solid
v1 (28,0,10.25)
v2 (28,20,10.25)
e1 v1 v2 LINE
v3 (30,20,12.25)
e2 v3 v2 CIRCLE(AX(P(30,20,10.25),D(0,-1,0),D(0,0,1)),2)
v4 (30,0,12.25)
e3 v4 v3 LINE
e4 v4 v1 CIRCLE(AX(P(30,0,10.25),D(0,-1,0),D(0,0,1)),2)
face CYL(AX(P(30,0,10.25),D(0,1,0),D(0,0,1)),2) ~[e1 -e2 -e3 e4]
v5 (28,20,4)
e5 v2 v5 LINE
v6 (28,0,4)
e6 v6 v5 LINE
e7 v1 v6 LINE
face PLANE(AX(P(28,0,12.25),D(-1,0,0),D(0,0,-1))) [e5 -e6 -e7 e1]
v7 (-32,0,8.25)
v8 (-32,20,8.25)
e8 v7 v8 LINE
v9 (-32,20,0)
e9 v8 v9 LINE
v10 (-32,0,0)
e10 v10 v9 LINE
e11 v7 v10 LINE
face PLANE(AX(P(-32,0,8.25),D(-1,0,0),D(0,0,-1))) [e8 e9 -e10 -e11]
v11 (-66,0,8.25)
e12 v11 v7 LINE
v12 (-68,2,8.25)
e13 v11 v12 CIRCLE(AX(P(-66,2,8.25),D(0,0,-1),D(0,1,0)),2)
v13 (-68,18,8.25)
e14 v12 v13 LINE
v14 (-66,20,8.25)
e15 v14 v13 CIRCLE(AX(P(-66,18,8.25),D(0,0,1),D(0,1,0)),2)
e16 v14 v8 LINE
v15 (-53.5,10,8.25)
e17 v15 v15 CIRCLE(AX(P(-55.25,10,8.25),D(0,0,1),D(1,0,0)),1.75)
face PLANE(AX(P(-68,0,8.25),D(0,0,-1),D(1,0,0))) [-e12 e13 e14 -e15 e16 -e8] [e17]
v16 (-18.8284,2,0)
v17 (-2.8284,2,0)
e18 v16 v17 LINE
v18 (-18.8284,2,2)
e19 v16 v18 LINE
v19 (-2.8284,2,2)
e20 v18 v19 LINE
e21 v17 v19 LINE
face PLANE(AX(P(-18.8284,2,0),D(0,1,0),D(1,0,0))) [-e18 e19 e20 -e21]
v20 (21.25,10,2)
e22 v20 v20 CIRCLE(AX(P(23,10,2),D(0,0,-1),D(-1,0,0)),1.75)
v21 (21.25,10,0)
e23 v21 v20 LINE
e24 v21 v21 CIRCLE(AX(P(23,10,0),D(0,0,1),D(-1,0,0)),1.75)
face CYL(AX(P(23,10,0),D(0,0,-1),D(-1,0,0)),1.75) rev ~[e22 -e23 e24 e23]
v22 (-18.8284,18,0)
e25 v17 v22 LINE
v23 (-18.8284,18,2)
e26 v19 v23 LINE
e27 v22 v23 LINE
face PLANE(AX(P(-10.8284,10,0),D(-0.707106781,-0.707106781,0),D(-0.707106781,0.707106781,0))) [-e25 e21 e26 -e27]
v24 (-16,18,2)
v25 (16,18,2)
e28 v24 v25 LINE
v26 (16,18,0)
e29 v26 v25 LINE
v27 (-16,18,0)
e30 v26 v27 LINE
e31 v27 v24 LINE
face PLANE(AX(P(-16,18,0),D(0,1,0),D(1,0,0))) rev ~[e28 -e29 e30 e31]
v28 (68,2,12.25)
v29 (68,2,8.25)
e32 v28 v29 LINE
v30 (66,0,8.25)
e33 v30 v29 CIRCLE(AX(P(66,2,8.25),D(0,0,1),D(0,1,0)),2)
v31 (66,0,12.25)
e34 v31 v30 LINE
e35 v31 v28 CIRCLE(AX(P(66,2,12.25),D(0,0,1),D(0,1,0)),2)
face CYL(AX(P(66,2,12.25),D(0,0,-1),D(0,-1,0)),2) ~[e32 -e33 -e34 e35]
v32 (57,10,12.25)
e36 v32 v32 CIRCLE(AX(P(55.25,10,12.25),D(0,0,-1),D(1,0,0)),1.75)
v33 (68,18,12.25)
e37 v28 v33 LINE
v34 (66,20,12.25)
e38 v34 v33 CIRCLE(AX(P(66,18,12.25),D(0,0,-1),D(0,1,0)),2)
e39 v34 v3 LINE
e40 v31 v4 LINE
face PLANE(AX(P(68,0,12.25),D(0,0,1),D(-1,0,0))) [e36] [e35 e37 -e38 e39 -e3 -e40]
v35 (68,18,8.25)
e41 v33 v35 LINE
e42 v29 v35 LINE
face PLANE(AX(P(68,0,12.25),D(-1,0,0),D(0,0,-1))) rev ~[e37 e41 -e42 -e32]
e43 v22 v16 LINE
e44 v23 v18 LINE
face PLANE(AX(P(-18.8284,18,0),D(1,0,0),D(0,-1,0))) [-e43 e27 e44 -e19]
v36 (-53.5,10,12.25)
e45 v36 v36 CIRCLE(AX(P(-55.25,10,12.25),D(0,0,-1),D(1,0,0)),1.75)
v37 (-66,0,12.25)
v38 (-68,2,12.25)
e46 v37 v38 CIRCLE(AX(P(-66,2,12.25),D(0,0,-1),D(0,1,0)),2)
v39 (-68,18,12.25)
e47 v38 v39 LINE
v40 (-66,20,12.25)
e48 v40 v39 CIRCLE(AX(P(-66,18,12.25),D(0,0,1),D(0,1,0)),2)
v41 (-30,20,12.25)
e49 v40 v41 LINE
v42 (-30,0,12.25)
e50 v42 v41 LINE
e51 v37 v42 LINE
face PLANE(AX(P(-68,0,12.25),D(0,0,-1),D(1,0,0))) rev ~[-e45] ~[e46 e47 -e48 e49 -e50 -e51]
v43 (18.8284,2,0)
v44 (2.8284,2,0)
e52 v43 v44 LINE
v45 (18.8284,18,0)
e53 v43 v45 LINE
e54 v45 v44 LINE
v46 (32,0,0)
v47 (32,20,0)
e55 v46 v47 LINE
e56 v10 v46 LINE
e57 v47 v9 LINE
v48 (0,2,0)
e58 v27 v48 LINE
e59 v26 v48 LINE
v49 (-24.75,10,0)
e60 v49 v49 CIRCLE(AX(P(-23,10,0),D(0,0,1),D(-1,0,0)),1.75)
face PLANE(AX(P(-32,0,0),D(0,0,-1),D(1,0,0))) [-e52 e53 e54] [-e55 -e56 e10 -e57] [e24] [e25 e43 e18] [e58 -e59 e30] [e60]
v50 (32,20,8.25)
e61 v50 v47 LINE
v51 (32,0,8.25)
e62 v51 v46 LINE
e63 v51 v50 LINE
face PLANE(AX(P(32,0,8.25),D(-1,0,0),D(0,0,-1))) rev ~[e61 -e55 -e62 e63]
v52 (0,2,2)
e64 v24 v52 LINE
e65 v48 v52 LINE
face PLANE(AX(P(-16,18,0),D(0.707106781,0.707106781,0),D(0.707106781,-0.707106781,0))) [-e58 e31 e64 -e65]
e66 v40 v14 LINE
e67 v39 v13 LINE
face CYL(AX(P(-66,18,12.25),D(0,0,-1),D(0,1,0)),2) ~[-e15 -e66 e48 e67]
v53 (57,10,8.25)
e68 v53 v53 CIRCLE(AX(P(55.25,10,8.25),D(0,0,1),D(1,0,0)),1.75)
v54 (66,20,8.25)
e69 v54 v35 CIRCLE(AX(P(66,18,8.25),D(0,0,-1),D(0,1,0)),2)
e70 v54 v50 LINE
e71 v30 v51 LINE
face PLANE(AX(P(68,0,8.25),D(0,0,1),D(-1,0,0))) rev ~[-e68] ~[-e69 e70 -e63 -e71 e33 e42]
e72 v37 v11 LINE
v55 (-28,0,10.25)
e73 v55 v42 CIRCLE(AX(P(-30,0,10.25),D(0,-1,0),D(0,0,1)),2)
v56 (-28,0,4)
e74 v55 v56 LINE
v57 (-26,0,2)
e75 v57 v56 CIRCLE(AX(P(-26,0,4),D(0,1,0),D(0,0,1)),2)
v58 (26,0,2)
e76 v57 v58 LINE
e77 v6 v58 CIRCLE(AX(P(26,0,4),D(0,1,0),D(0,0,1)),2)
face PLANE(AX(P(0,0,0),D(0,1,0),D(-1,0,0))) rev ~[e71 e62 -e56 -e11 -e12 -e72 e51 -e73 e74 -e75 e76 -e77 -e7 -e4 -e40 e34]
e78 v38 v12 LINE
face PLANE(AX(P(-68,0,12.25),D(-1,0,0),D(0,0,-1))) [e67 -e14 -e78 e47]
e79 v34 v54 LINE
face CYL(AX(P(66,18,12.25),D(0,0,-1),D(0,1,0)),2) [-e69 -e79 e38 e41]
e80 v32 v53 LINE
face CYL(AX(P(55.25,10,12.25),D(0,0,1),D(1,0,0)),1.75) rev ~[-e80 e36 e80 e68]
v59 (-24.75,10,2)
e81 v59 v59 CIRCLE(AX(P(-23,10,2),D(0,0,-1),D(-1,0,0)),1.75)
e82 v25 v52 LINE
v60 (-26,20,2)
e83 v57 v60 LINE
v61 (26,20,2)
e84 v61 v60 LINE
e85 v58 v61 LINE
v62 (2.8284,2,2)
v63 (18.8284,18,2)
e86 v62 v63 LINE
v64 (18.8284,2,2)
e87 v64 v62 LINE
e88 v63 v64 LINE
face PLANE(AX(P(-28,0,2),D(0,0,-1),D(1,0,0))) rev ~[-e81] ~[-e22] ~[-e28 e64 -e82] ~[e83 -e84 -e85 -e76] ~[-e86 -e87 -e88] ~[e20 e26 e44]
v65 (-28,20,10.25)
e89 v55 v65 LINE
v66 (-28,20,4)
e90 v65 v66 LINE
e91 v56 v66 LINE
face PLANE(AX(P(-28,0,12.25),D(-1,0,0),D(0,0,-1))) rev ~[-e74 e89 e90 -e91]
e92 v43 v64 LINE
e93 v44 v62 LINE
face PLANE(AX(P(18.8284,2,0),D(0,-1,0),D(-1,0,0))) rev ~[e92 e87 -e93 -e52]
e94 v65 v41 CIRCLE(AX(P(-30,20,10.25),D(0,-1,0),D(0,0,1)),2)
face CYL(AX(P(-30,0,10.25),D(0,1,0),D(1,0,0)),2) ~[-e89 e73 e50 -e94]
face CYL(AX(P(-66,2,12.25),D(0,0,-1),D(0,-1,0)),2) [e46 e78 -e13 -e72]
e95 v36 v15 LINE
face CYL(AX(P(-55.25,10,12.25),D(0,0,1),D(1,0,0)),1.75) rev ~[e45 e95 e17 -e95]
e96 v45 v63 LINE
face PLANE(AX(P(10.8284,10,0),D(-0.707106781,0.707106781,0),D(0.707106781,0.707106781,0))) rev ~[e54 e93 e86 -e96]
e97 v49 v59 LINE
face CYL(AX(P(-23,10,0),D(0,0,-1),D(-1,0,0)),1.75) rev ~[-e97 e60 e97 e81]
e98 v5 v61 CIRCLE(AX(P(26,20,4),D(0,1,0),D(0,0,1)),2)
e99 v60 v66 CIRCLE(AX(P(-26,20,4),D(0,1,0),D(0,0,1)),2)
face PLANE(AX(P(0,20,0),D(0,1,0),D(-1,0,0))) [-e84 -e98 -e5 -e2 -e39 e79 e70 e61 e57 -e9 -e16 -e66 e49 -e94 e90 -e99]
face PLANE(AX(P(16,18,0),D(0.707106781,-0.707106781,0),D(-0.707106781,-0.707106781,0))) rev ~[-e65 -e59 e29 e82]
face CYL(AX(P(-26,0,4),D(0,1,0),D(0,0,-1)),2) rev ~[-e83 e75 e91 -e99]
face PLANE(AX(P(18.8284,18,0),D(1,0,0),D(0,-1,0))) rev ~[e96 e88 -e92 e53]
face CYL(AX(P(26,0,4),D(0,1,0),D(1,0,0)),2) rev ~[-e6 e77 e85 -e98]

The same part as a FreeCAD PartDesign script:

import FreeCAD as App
import Part
import Sketcher

V = App.Vector


def edges_at(feature, points):
    """Names of the edges that pass closest to the given points."""
    edges = feature.Shape.Edges
    near = lambda p: min(range(len(edges)), key=lambda i: edges[i].distToShape(Part.Vertex(*p))[0])
    return sorted({f"Edge{near(p) + 1}" for p in points})

doc = App.newDocument("Part")
params = doc.addObject("Spreadsheet::Sheet", "Params")
for row, (alias, value) in enumerate([
    ("sketch1_width", "56 mm"),
    ("sketch1_width2", "40 mm"),
    ("sketch1_width3", "36 mm"),
    ("sketch1_height", "4 mm"),
    ("sketch1_height2", "10.25 mm"),
    ("pad1_length", "20 mm"),
    ("sketch2_diameter", "3.5 mm"),
    ("sketch2_width", "16 mm"),
    ("sketch3_diameter", "3.5 mm"),
    ("fillet_radius", "2 mm"),
    ("fillet2_radius", "2 mm"),
], start=1):
    params.set(f"A{row}", alias)
    params.set(f"B{row}", "=" + value)
    params.setAlias(f"B{row}", alias)

body = doc.addObject("PartDesign::Body", "Body")

sketch1 = body.newObject("Sketcher::SketchObject", "Sketch")
sketch1.AttachmentSupport = (doc.getObject("XZ_Plane"), [""])
sketch1.MapMode = "FlatFace"
sketch1.addGeometry(Part.LineSegment(V(-28, 2, 0), V(28, 2, 0)), False)
sketch1.addGeometry(Part.LineSegment(V(28, 2, 0), V(28, 12.2, 0)), False)
sketch1.addGeometry(Part.LineSegment(V(28, 12.2, 0), V(68, 12.2, 0)), False)
sketch1.addGeometry(Part.LineSegment(V(68, 12.2, 0), V(68, 8.2, 0)), False)
sketch1.addGeometry(Part.LineSegment(V(68, 8.2, 0), V(32, 8.2, 0)), False)
sketch1.addGeometry(Part.LineSegment(V(32, 8.2, 0), V(32, 0, 0)), False)
sketch1.addGeometry(Part.LineSegment(V(32, 0, 0), V(-32, 0, 0)), False)
sketch1.addGeometry(Part.LineSegment(V(-32, 0, 0), V(-32, 8.2, 0)), False)
sketch1.addGeometry(Part.LineSegment(V(-32, 8.2, 0), V(-68, 8.2, 0)), False)
sketch1.addGeometry(Part.LineSegment(V(-68, 8.2, 0), V(-68, 12.2, 0)), False)
sketch1.addGeometry(Part.LineSegment(V(-68, 12.2, 0), V(-28, 12.2, 0)), False)
sketch1.addGeometry(Part.LineSegment(V(-28, 12.2, 0), V(-28, 2, 0)), False)
sketch1.addConstraint(Sketcher.Constraint("Coincident", 0, 2, 1, 1))
sketch1.addConstraint(Sketcher.Constraint("Coincident", 1, 2, 2, 1))
sketch1.addConstraint(Sketcher.Constraint("Coincident", 2, 2, 3, 1))
sketch1.addConstraint(Sketcher.Constraint("Coincident", 3, 2, 4, 1))
sketch1.addConstraint(Sketcher.Constraint("Coincident", 4, 2, 5, 1))
sketch1.addConstraint(Sketcher.Constraint("Coincident", 5, 2, 6, 1))
sketch1.addConstraint(Sketcher.Constraint("Coincident", 6, 2, 7, 1))
sketch1.addConstraint(Sketcher.Constraint("Coincident", 7, 2, 8, 1))
sketch1.addConstraint(Sketcher.Constraint("Coincident", 8, 2, 9, 1))
sketch1.addConstraint(Sketcher.Constraint("Coincident", 9, 2, 10, 1))
sketch1.addConstraint(Sketcher.Constraint("Coincident", 10, 2, 11, 1))
sketch1.addConstraint(Sketcher.Constraint("Coincident", 11, 2, 0, 1))
sketch1.addConstraint(Sketcher.Constraint("Horizontal", 0))
sketch1.addConstraint(Sketcher.Constraint("Vertical", 1))
sketch1.addConstraint(Sketcher.Constraint("Horizontal", 2))
sketch1.addConstraint(Sketcher.Constraint("Vertical", 3))
sketch1.addConstraint(Sketcher.Constraint("Horizontal", 4))
sketch1.addConstraint(Sketcher.Constraint("Vertical", 5))
sketch1.addConstraint(Sketcher.Constraint("Horizontal", 6))
sketch1.addConstraint(Sketcher.Constraint("Vertical", 7))
sketch1.addConstraint(Sketcher.Constraint("Horizontal", 8))
sketch1.addConstraint(Sketcher.Constraint("Vertical", 9))
sketch1.addConstraint(Sketcher.Constraint("Horizontal", 10))
sketch1.addConstraint(Sketcher.Constraint("Vertical", 11))
sketch1.addConstraint(Sketcher.Constraint("Symmetric", 5, 2, 6, 2, -1, 1))
sketch1.addConstraint(Sketcher.Constraint("Symmetric", 3, 2, 8, 2, -2))
sketch1.addConstraint(Sketcher.Constraint("Symmetric", 1, 2, 10, 2, -2))
sketch1.addConstraint(Sketcher.Constraint("DistanceX", 0, 1, 0, 2, 56.0))
sketch1.addConstraint(Sketcher.Constraint("DistanceX", 2, 1, 2, 2, 40.0))
sketch1.addConstraint(Sketcher.Constraint("DistanceX", 4, 2, 4, 1, 36.0))
sketch1.addConstraint(Sketcher.Constraint("DistanceY", 3, 2, 3, 1, 4.0))
sketch1.addConstraint(Sketcher.Constraint("DistanceY", -1, 1, 0, 2, 2.0))
sketch1.addConstraint(Sketcher.Constraint("DistanceY", 1, 1, 1, 2, 10.25))
sketch1.setExpression("Constraints[27]", "Params.sketch1_width")
sketch1.setExpression("Constraints[28]", "Params.sketch1_width2")
sketch1.setExpression("Constraints[29]", "Params.sketch1_width3")
sketch1.setExpression("Constraints[30]", "Params.sketch1_height")
sketch1.setExpression("Constraints[32]", "Params.sketch1_height2")
pad1 = body.newObject("PartDesign::Pad", "Pad")
pad1.Profile = sketch1
pad1.setExpression("Length", "Params.pad1_length")
pad1.Reversed = True

sketch2 = body.newObject("Sketcher::SketchObject", "Sketch001")
sketch2.AttachmentSupport = (doc.getObject("XY_Plane"), [""])
sketch2.MapMode = "FlatFace"
sketch2.addGeometry(Part.Circle(V(23, 10, 0), V(0, 0, 1), 1.8), False)
sketch2.addGeometry(Part.LineSegment(V(-16, 18, 0), V(16, 18, 0)), False)
sketch2.addGeometry(Part.LineSegment(V(16, 18, 0), V(0, 2, 0)), False)
sketch2.addGeometry(Part.LineSegment(V(0, 2, 0), V(-16, 18, 0)), False)
sketch2.addGeometry(Part.LineSegment(V(18.8, 18, 0), V(18.8, 2, 0)), False)
sketch2.addGeometry(Part.LineSegment(V(18.8, 2, 0), V(2.8, 2, 0)), False)
sketch2.addGeometry(Part.LineSegment(V(2.8, 2, 0), V(18.8, 18, 0)), False)
sketch2.addGeometry(Part.Circle(V(-23, 10, 0), V(0, 0, 1), 1.8), False)
sketch2.addGeometry(Part.LineSegment(V(-18.8, 18, 0), V(-2.8, 2, 0)), False)
sketch2.addGeometry(Part.LineSegment(V(-2.8, 2, 0), V(-18.8, 2, 0)), False)
sketch2.addGeometry(Part.LineSegment(V(-18.8, 2, 0), V(-18.8, 18, 0)), False)
sketch2.addConstraint(Sketcher.Constraint("Coincident", 1, 2, 2, 1))
sketch2.addConstraint(Sketcher.Constraint("Coincident", 2, 2, 3, 1))
sketch2.addConstraint(Sketcher.Constraint("Coincident", 3, 2, 1, 1))
sketch2.addConstraint(Sketcher.Constraint("Coincident", 4, 2, 5, 1))
sketch2.addConstraint(Sketcher.Constraint("Coincident", 5, 2, 6, 1))
sketch2.addConstraint(Sketcher.Constraint("Coincident", 6, 2, 4, 1))
sketch2.addConstraint(Sketcher.Constraint("Coincident", 8, 2, 9, 1))
sketch2.addConstraint(Sketcher.Constraint("Coincident", 9, 2, 10, 1))
sketch2.addConstraint(Sketcher.Constraint("Coincident", 10, 2, 8, 1))
sketch2.addConstraint(Sketcher.Constraint("Horizontal", 1))
sketch2.addConstraint(Sketcher.Constraint("Vertical", 4))
sketch2.addConstraint(Sketcher.Constraint("Horizontal", 5))
sketch2.addConstraint(Sketcher.Constraint("Horizontal", 9))
sketch2.addConstraint(Sketcher.Constraint("Vertical", 10))
sketch2.addConstraint(Sketcher.Constraint("Equal", 0, 7))
sketch2.addConstraint(Sketcher.Constraint("Symmetric", 0, 3, 7, 3, -2))
sketch2.addConstraint(Sketcher.Constraint("Symmetric", 5, 2, 8, 2, -2))
sketch2.addConstraint(Sketcher.Constraint("Symmetric", 6, 2, 10, 2, -2))
sketch2.addConstraint(Sketcher.Constraint("PointOnObject", 2, 2, -2))
sketch2.addConstraint(Sketcher.Constraint("Perpendicular", 2, 3))
sketch2.addConstraint(Sketcher.Constraint("Perpendicular", 3, 6))
sketch2.addConstraint(Sketcher.Constraint("Perpendicular", 6, 8))
sketch2.addConstraint(Sketcher.Constraint("Horizontal", 2, 2, 4, 2))
sketch2.addConstraint(Sketcher.Constraint("Horizontal", 3, 2, 6, 2))
sketch2.addConstraint(Sketcher.Constraint("Diameter", 0, 3.5))
sketch2.addConstraint(Sketcher.Constraint("DistanceX", 5, 2, 5, 1, 16.0))
sketch2.addConstraint(Sketcher.Constraint("DistanceY", -1, 1, 2, 2, 2.0))
sketch2.addConstraint(Sketcher.Constraint("DistanceX", 7, 3, 0, 3, 46.0))
sketch2.addConstraint(Sketcher.Constraint("DistanceY", -1, 1, 0, 3, 10.0))
sketch2.addConstraint(Sketcher.Constraint("DistanceX", -1, 1, 4, 2, 18.8284))
sketch2.setExpression("Constraints[24]", "Params.sketch2_diameter")
sketch2.setExpression("Constraints[25]", "Params.sketch2_width")
pocket1 = body.newObject("PartDesign::Pocket", "Pocket")
pocket1.Profile = sketch2
pocket1.Type = "ThroughAll"
pocket1.Reversed = True

sketch3 = body.newObject("Sketcher::SketchObject", "Sketch002")
sketch3.AttachmentSupport = (doc.getObject("XY_Plane"), [""])
sketch3.MapMode = "FlatFace"
sketch3.AttachmentOffset = App.Placement(V(0, 0, 12.25), App.Rotation())
sketch3.addGeometry(Part.Circle(V(-55.2, 10, 0), V(0, 0, 1), 1.8), False)
sketch3.addGeometry(Part.Circle(V(55.2, 10, 0), V(0, 0, 1), 1.8), False)
sketch3.addConstraint(Sketcher.Constraint("Equal", 0, 1))
sketch3.addConstraint(Sketcher.Constraint("Symmetric", 0, 3, 1, 3, -2))
sketch3.addConstraint(Sketcher.Constraint("Diameter", 0, 3.5))
sketch3.addConstraint(Sketcher.Constraint("DistanceY", -1, 1, 0, 3, 10.0))
sketch3.addConstraint(Sketcher.Constraint("DistanceX", 0, 3, 1, 3, 110.5))
sketch3.setExpression("Constraints[2]", "Params.sketch3_diameter")
pocket2 = body.newObject("PartDesign::Pocket", "Pocket001")
pocket2.Profile = sketch3
pocket2.Type = "ThroughAll"
doc.recompute()

fillet = body.newObject("PartDesign::Fillet", "Fillet")
fillet.Base = (pocket2, edges_at(pocket2, [
    (-68, 20, 10.25),
    (68, 20, 10.25),
    (68, 0, 10.25),
    (-68, 0, 10.25),
]))
fillet.setExpression("Radius", "Params.fillet_radius")
doc.recompute()

fillet2 = body.newObject("PartDesign::Fillet", "Fillet001")
fillet2.Base = (fillet, edges_at(fillet, [
    (-28, 10, 2),
    (-28, 10, 12.25),
    (28, 10, 2),
    (28, 10, 12.25),
]))
fillet2.setExpression("Radius", "Params.fillet2_radius")

doc.recompute()
